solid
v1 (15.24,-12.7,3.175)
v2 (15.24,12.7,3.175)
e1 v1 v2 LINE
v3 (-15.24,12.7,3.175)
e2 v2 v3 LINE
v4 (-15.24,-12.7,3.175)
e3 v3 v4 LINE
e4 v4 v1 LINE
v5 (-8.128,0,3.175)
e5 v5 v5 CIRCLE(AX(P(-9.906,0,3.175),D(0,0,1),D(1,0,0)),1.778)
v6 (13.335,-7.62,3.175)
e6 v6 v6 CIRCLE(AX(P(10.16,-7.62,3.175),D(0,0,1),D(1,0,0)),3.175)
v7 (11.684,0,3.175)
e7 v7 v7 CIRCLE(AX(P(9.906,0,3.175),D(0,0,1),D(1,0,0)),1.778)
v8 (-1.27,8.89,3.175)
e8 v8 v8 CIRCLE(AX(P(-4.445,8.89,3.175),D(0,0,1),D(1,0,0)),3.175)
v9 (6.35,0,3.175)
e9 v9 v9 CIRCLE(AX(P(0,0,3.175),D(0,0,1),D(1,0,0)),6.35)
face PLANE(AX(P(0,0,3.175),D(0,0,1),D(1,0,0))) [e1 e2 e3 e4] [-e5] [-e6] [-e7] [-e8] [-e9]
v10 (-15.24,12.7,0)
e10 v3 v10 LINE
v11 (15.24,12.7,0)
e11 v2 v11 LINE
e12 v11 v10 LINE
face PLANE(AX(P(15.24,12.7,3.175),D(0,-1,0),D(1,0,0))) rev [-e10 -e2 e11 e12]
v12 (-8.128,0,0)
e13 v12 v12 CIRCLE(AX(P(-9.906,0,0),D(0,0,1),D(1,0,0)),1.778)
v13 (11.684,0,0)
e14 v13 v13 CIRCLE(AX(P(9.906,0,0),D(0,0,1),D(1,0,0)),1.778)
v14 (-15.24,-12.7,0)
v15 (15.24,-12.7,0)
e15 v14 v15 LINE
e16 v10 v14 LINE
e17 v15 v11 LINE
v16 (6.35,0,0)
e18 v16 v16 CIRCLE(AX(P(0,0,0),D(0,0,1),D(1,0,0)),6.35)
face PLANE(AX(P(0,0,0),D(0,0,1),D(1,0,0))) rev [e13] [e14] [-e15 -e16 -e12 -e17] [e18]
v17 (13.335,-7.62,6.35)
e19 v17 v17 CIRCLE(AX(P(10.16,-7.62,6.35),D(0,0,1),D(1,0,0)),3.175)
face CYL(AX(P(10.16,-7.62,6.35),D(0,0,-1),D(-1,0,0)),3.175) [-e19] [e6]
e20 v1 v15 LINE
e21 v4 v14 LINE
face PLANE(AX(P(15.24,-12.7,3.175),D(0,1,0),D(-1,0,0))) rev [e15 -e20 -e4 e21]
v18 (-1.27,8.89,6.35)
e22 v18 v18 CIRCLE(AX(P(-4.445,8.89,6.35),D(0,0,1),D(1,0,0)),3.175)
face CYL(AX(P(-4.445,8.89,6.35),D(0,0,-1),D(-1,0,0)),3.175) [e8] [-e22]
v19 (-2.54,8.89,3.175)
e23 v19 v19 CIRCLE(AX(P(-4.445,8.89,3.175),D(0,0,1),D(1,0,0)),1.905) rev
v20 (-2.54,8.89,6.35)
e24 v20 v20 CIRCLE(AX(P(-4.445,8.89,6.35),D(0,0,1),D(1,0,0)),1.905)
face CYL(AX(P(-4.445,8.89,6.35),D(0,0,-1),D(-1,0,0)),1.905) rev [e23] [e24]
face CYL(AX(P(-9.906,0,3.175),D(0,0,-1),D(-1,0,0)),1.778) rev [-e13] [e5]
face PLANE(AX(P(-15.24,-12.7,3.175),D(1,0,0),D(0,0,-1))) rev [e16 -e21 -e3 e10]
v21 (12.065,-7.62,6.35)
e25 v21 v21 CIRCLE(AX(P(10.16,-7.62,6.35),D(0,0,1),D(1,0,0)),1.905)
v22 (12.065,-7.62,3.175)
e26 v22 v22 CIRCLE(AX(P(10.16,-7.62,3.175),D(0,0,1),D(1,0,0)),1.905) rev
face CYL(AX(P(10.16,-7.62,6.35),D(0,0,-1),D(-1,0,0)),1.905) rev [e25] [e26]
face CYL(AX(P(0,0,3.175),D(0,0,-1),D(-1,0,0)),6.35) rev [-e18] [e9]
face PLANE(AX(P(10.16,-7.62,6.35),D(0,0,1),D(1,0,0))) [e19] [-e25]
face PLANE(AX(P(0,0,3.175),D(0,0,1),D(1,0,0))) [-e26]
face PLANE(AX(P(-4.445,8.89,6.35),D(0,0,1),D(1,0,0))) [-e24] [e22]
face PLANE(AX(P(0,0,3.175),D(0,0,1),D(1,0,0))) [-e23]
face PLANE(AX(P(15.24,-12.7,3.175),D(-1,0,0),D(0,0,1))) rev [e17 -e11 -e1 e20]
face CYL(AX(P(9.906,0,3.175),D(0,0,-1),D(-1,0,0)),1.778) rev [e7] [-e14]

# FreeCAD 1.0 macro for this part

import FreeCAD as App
import Part
import Sketcher
from FreeCAD import Vector
Q = App.Units.Quantity


def add_polygon(sketch, points):
    """Adds a closed chain of lines whose ends are joined by coincident constraints."""
    first, n = sketch.GeometryCount, len(points)
    for a, b in zip(points, points[1:] + points[:1]):
        sketch.addGeometry(Part.LineSegment(App.Vector(*a, 0), App.Vector(*b, 0)), False)
    for i in range(n):
        sketch.addConstraint(Sketcher.Constraint("Coincident", first + i, 2, first + (i + 1) % n, 1))

doc = App.newDocument("Part")
params = doc.addObject("Spreadsheet::Sheet", "Params")
for row, (alias, value) in enumerate([
    ("sketch1_diameter", "0.5 in"),
    ("sketch1_diameter2", "0.14 in"),
    ("sketch1_height", "1 in"),
    ("sketch1_width", "1.2 in"),
    ("pad1_length", "0.125 in"),
    ("sketch2_diameter", "0.25 in"),
    ("sketch2_diameter2", "0.15 in"),
    ("pad2_length", "0.125 in"),
], start=1):
    params.set(f"A{row}", alias)
    params.set(f"B{row}", "=" + value)
    params.setAlias(f"B{row}", alias)

body = doc.addObject("PartDesign::Body", "Body")

sketch1 = body.newObject("Sketcher::SketchObject", "Sketch")
sketch1.AttachmentSupport = (doc.getObject("XY_Plane"), [""])
sketch1.MapMode = "FlatFace"
add_polygon(sketch1, [(-15.2, 12.7), (-15.2, -12.7), (15.2, -12.7), (15.2, 12.7)])
sketch1.addGeometry(Part.Circle(Vector(-9.9, 0, 0), Vector(0, 0, 1), 1.8), False)
sketch1.addGeometry(Part.Circle(Vector(0, 0, 0), Vector(0, 0, 1), 6.3), False)
sketch1.addGeometry(Part.Circle(Vector(9.9, 0, 0), Vector(0, 0, 1), 1.8), False)
sketch1.addConstraint([
    Sketcher.Constraint("Vertical", 0),
    Sketcher.Constraint("Horizontal", 1),
    Sketcher.Constraint("Vertical", 2),
    Sketcher.Constraint("Horizontal", 3),
    Sketcher.Constraint("Coincident", 5, 3, -1, 1),
    Sketcher.Constraint("Equal", 4, 6),
    Sketcher.Constraint("Symmetric", 4, 3, 6, 3, -1, 1),
    Sketcher.Constraint("Symmetric", 0, 2, 2, 2, -1, 1),
    Sketcher.Constraint("PointOnObject", 4, 3, -1),
    Sketcher.Constraint("Diameter", 5, Q("0.5 in")),
    Sketcher.Constraint("Diameter", 4, Q("0.14 in")),
    Sketcher.Constraint("DistanceY", 0, 2, 0, 1, Q("1 in")),
    Sketcher.Constraint("DistanceX", 1, 1, 1, 2, Q("1.2 in")),
    Sketcher.Constraint("DistanceX", 4, 3, -1, 1, Q("0.39 in")),
])
sketch1.setExpression("Constraints[13]", "Params.sketch1_diameter")
sketch1.setExpression("Constraints[14]", "Params.sketch1_diameter2")
sketch1.setExpression("Constraints[15]", "Params.sketch1_height")
sketch1.setExpression("Constraints[16]", "Params.sketch1_width")
pad1 = body.newObject("PartDesign::Pad", "Pad")
pad1.Profile = sketch1
pad1.setExpression("Length", "Params.pad1_length")

sketch2 = body.newObject("Sketcher::SketchObject", "Sketch001")
sketch2.AttachmentSupport = (doc.getObject("XY_Plane"), [""])
sketch2.MapMode = "FlatFace"
sketch2.AttachmentOffset = App.Placement(Vector(0, 0, 0.125 * 25.4), App.Rotation())
sketch2.addGeometry([
    Part.Circle(Vector(-4.4, 8.9, 0), Vector(0, 0, 1), 3.2),
    Part.Circle(Vector(-4.4, 8.9, 0), Vector(0, 0, 1), 1.9),
    Part.Circle(Vector(10.2, -7.6, 0), Vector(0, 0, 1), 3.2),
    Part.Circle(Vector(10.2, -7.6, 0), Vector(0, 0, 1), 1.9),
], False)
sketch2.addConstraint([
    Sketcher.Constraint("Coincident", 1, 3, 0, 3),
    Sketcher.Constraint("Coincident", 3, 3, 2, 3),
    Sketcher.Constraint("Equal", 0, 2),
    Sketcher.Constraint("Equal", 1, 3),
    Sketcher.Constraint("Diameter", 0, Q("0.25 in")),
    Sketcher.Constraint("Diameter", 1, Q("0.15 in")),
    Sketcher.Constraint("DistanceX", -1, 1, 2, 3, Q("0.4 in")),
    Sketcher.Constraint("DistanceY", 2, 3, -1, 1, Q("0.3 in")),
    Sketcher.Constraint("DistanceY", -1, 1, 0, 3, Q("0.35 in")),
    Sketcher.Constraint("DistanceX", 0, 3, -1, 1, Q("0.175 in")),
])
sketch2.setExpression("Constraints[4]", "Params.sketch2_diameter")
sketch2.setExpression("Constraints[5]", "Params.sketch2_diameter2")
pad2 = body.newObject("PartDesign::Pad", "Pad001")
pad2.Profile = sketch2
pad2.setExpression("Length", "Params.pad2_length")

doc.recompute()
